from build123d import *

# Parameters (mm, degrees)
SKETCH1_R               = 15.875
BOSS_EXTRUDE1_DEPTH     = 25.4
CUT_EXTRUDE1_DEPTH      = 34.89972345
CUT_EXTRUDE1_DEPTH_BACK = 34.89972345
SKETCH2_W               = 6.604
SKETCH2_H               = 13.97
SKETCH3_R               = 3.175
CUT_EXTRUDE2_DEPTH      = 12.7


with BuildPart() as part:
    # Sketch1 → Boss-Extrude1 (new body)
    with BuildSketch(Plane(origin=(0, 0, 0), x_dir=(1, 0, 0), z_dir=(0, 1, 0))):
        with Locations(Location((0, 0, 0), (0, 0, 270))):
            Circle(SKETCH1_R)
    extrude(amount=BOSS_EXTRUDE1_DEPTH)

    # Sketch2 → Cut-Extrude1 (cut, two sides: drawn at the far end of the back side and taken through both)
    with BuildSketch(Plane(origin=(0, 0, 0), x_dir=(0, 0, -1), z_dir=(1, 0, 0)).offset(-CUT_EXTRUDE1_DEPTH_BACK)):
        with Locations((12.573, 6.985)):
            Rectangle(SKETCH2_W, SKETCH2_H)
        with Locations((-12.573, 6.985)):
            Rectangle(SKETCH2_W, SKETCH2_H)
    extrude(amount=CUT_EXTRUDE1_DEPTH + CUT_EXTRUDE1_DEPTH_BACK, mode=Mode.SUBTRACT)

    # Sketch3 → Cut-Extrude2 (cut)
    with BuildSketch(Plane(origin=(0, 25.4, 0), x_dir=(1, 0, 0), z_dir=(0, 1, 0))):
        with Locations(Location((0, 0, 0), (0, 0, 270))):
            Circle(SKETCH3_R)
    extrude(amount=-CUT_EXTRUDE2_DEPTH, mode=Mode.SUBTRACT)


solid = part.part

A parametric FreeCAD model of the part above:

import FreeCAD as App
import Part
import Sketcher
from FreeCAD import Vector
Q = App.Units.Quantity

doc = App.newDocument("Part")
body = doc.addObject("PartDesign::Body", "Body")

sketch1 = body.newObject("Sketcher::SketchObject", "Sketch")
sketch1.AttachmentSupport = (doc.getObject("XZ_Plane"), [""])
sketch1.MapMode = "FlatFace"
sketch1.addGeometry(Part.Circle(Vector(0, 0, 0), Vector(0, 0, 1), 16), False)
sketch1.addConstraint([
    Sketcher.Constraint("Coincident", 0, 3, -1, 1),
    Sketcher.Constraint("Diameter", 0, Q("1.25 in")),
])
pad1 = body.newObject("PartDesign::Pad", "Pad")
pad1.Profile = sketch1
pad1.Length = Q("1 in")
pad1.Reversed = True

sketch2 = body.newObject("Sketcher::SketchObject", "Sketch001")
sketch2.AttachmentSupport = (doc.getObject("YZ_Plane"), [""])
sketch2.MapMode = "FlatFace"
sketch2.addGeometry([
    Part.LineSegment(Vector(14, -9, 0), Vector(0, -9, 0)),
    Part.LineSegment(Vector(0, -9, 0), Vector(0, -16, 0)),
    Part.LineSegment(Vector(0, -16, 0), Vector(14, -16, 0)),
    Part.LineSegment(Vector(14, -16, 0), Vector(14, -9, 0)),
    Part.LineSegment(Vector(14, 16, 0), Vector(0, 16, 0)),
    Part.LineSegment(Vector(0, 16, 0), Vector(0, 9, 0)),
    Part.LineSegment(Vector(0, 9, 0), Vector(14, 9, 0)),
    Part.LineSegment(Vector(14, 9, 0), Vector(14, 16, 0)),
], False)
sketch2.addConstraint([
    Sketcher.Constraint("Coincident", 0, 2, 1, 1),
    Sketcher.Constraint("Coincident", 1, 2, 2, 1),
    Sketcher.Constraint("Coincident", 2, 2, 3, 1),
    Sketcher.Constraint("Coincident", 3, 2, 0, 1),
    Sketcher.Constraint("Coincident", 4, 2, 5, 1),
    Sketcher.Constraint("Coincident", 5, 2, 6, 1),
    Sketcher.Constraint("Coincident", 6, 2, 7, 1),
    Sketcher.Constraint("Coincident", 7, 2, 4, 1),
    Sketcher.Constraint("Horizontal", 0),
    Sketcher.Constraint("Vertical", 1),
    Sketcher.Constraint("Horizontal", 2),
    Sketcher.Constraint("Vertical", 3),
    Sketcher.Constraint("Horizontal", 4),
    Sketcher.Constraint("Vertical", 5),
    Sketcher.Constraint("Horizontal", 6),
    Sketcher.Constraint("Vertical", 7),
    Sketcher.Constraint("Symmetric", 1, 2, 4, 2, -1, 1),
    Sketcher.Constraint("Symmetric", 0, 2, 5, 2, -1),
    Sketcher.Constraint("Vertical", 3, 2, 6, 2),
    Sketcher.Constraint("DistanceX", 0, 2, 0, 1, Q("0.55 in")),
    Sketcher.Constraint("DistanceY", 1, 2, 1, 1, Q("0.26 in")),
    Sketcher.Constraint("DistanceY", 0, 2, 4, 2, Q("0.99 in")),
])
pocket1 = body.newObject("PartDesign::Pocket", "Pocket")
pocket1.Profile = sketch2
pocket1.Type = "ThroughAll"
pocket1.Midplane = True

sketch3 = body.newObject("Sketcher::SketchObject", "Sketch002")
sketch3.AttachmentSupport = (doc.getObject("XZ_Plane"), [""])
sketch3.MapMode = "FlatFace"
sketch3.AttachmentOffset = App.Placement(Vector(0, 0, -1 * 25.4), App.Rotation())
sketch3.addGeometry(Part.Circle(Vector(0, 0, 0), Vector(0, 0, 1), 3.2), False)
sketch3.addConstraint([
    Sketcher.Constraint("Coincident", 0, 3, -1, 1),
    Sketcher.Constraint("Diameter", 0, Q("0.25 in")),
])
pocket2 = body.newObject("PartDesign::Pocket", "Pocket001")
pocket2.Profile = sketch3
pocket2.Length = Q("0.5 in")
pocket2.Reversed = True

doc.recompute()
